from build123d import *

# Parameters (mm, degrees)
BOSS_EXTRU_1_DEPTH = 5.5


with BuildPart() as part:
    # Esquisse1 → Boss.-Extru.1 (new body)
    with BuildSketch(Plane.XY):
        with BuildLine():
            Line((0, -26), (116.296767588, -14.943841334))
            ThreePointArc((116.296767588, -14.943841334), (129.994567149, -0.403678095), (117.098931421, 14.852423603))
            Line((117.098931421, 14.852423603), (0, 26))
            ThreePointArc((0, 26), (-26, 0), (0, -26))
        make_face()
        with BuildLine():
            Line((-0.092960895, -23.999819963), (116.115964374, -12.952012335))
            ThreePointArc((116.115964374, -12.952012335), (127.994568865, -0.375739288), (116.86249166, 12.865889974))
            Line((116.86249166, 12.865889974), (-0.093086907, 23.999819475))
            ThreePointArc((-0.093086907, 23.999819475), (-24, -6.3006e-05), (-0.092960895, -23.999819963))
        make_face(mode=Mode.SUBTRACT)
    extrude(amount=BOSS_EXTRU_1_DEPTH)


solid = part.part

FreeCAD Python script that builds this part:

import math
import FreeCAD as App
import Part
import Sketcher

V = App.Vector

doc = App.newDocument("Part")
body = doc.addObject("PartDesign::Body", "Body")

# Sketch on XY plane
sketch1 = body.newObject("Sketcher::SketchObject", "Sketch")
sketch1.AttachmentSupport = (doc.getObject("XY_Plane"), [""])
sketch1.MapMode = "FlatFace"
sketch1.addGeometry([
    Part.LineSegment(V(0, -26, 0), V(116.296768, -14.943841, 0)),  # 0
    Part.ArcOfCircle(Part.Circle(V(115, 0, 0), V(0, 0, 1), 15), math.radians(-85.040522), math.radians(81.956276)),  # 1
    Part.LineSegment(V(117.098931, 14.852424, 0), V(0, 26, 0)),  # 2
    Part.ArcOfCircle(Part.Circle(V(0, 0, 0), V(0, 0, 1), 26), math.radians(90), math.radians(270)),  # 3
    Part.LineSegment(V(116.115964, -12.952012, 0), V(-0.092961, -23.99982, 0)),  # 4
    Part.ArcOfCircle(Part.Circle(V(0, 0, 0), V(0, 0, 1), 24), math.radians(90.222229), math.radians(269.778072)),  # 5
    Part.LineSegment(V(-0.093087, 23.999819, 0), V(116.862492, 12.86589, 0)),  # 6
    Part.ArcOfCircle(Part.Circle(V(115, 0, 0), V(0, 0, 1), 13), math.radians(-85.075474), math.radians(81.76297)),  # 7
], False)
sketch1.addConstraint([
    Sketcher.Constraint("Coincident", 0, 2, 1, 1),
    Sketcher.Constraint("Coincident", 1, 2, 2, 1),
    Sketcher.Constraint("Coincident", 2, 2, 3, 1),
    Sketcher.Constraint("Coincident", 3, 2, 0, 1),
    Sketcher.Constraint("Coincident", 4, 2, 5, 2),
    Sketcher.Constraint("Coincident", 5, 1, 6, 1),
    Sketcher.Constraint("Coincident", 6, 2, 7, 2),
    Sketcher.Constraint("Coincident", 7, 1, 4, 1),
    Sketcher.Constraint("Coincident", 3, 3, -1, 1),
    Sketcher.Constraint("Coincident", 5, 3, -1, 1),
    Sketcher.Constraint("Coincident", 7, 3, 1, 3),
    Sketcher.Constraint("PointOnObject", 1, 3, -1),
    Sketcher.Constraint("PointOnObject", 2, 2, -2),
    Sketcher.Constraint("PointOnObject", 3, 2, -2),
    Sketcher.Constraint("Parallel", 0, 4),
    Sketcher.Constraint("Parallel", 2, 6),
    Sketcher.Constraint("Radius", 1, 15.0),
    Sketcher.Constraint("Radius", 3, 26.0),
    Sketcher.Constraint("Radius", 5, 24.0),
    Sketcher.Constraint("Radius", 7, 13.0),
    Sketcher.Constraint("DistanceX", -1, 1, 1, 3, 115.0),
    Sketcher.Constraint("Distance", 0, 116.821132),
    Sketcher.Constraint("DistanceX", -1, 1, 1, 2, 117.098931),
    Sketcher.Constraint("DistanceX", 4, 2, -1, 1, 0.092961),
    Sketcher.Constraint("DistanceX", -1, 1, 6, 2, 116.862492),
])
pad1 = body.newObject("PartDesign::Pad", "Pad")
pad1.Profile = sketch1
pad1.Length = 5.5

doc.recompute()
